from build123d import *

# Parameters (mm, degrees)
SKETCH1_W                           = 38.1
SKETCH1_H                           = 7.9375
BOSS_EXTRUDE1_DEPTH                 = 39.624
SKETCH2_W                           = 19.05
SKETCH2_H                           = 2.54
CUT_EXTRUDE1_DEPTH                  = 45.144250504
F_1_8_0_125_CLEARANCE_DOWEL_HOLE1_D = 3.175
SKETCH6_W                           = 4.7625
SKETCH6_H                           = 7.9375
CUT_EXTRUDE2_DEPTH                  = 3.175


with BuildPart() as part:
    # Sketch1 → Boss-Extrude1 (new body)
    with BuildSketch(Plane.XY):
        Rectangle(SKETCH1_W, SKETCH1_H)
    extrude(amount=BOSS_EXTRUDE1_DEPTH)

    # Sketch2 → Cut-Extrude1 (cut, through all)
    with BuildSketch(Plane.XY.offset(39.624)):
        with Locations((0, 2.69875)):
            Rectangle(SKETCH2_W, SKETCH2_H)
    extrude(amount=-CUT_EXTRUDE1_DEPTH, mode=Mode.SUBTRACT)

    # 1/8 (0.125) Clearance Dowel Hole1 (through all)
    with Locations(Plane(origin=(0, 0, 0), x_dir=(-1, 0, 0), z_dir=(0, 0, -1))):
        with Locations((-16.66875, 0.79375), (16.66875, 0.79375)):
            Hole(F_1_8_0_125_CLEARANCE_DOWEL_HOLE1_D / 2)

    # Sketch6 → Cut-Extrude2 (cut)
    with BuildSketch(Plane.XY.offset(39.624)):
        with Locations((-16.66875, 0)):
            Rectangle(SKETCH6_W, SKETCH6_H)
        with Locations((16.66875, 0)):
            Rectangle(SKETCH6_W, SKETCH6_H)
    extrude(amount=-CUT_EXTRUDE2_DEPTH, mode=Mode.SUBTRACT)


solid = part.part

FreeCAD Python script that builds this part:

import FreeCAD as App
import Part
import Sketcher

V = App.Vector
Q = App.Units.Quantity

doc = App.newDocument("Part")
body = doc.addObject("PartDesign::Body", "Body")

sketch1 = body.newObject("Sketcher::SketchObject", "Sketch")
sketch1.AttachmentSupport = (doc.getObject("XY_Plane"), [""])
sketch1.MapMode = "FlatFace"
sketch1.addGeometry(Part.LineSegment(V(-19, 4, 0), V(-19, -4, 0)), False)
sketch1.addGeometry(Part.LineSegment(V(-19, -4, 0), V(19, -4, 0)), False)
sketch1.addGeometry(Part.LineSegment(V(19, -4, 0), V(19, 4, 0)), False)
sketch1.addGeometry(Part.LineSegment(V(19, 4, 0), V(-19, 4, 0)), False)
sketch1.addConstraint(Sketcher.Constraint("Coincident", 0, 2, 1, 1))
sketch1.addConstraint(Sketcher.Constraint("Coincident", 1, 2, 2, 1))
sketch1.addConstraint(Sketcher.Constraint("Coincident", 2, 2, 3, 1))
sketch1.addConstraint(Sketcher.Constraint("Coincident", 3, 2, 0, 1))
sketch1.addConstraint(Sketcher.Constraint("Vertical", 0))
sketch1.addConstraint(Sketcher.Constraint("Horizontal", 1))
sketch1.addConstraint(Sketcher.Constraint("Vertical", 2))
sketch1.addConstraint(Sketcher.Constraint("Horizontal", 3))
sketch1.addConstraint(Sketcher.Constraint("Symmetric", 0, 2, 2, 2, -1, 1))
sketch1.addConstraint(Sketcher.Constraint("DistanceX", 1, 1, 1, 2, Q("1.5 in")))
sketch1.addConstraint(Sketcher.Constraint("DistanceY", 0, 2, 0, 1, Q("0.3125 in")))
pad1 = body.newObject("PartDesign::Pad", "Pad")
pad1.Profile = sketch1
pad1.Length = Q("1.56 in")

sketch2 = body.newObject("Sketcher::SketchObject", "Sketch001")
sketch2.AttachmentSupport = (doc.getObject("XY_Plane"), [""])
sketch2.MapMode = "FlatFace"
sketch2.AttachmentOffset = App.Placement(V(0, 0, 1.56 * 25.4), App.Rotation())
sketch2.addGeometry(Part.LineSegment(V(-9.5, 4, 0), V(-9.5, 1.4, 0)), False)
sketch2.addGeometry(Part.LineSegment(V(-9.5, 1.4, 0), V(9.5, 1.4, 0)), False)
sketch2.addGeometry(Part.LineSegment(V(9.5, 1.4, 0), V(9.5, 4, 0)), False)
sketch2.addGeometry(Part.LineSegment(V(9.5, 4, 0), V(-9.5, 4, 0)), False)
sketch2.addConstraint(Sketcher.Constraint("Coincident", 0, 2, 1, 1))
sketch2.addConstraint(Sketcher.Constraint("Coincident", 1, 2, 2, 1))
sketch2.addConstraint(Sketcher.Constraint("Coincident", 2, 2, 3, 1))
sketch2.addConstraint(Sketcher.Constraint("Coincident", 3, 2, 0, 1))
sketch2.addConstraint(Sketcher.Constraint("Vertical", 0))
sketch2.addConstraint(Sketcher.Constraint("Horizontal", 1))
sketch2.addConstraint(Sketcher.Constraint("Vertical", 2))
sketch2.addConstraint(Sketcher.Constraint("Horizontal", 3))
sketch2.addConstraint(Sketcher.Constraint("DistanceY", 0, 2, 0, 1, Q("0.1 in")))
sketch2.addConstraint(Sketcher.Constraint("DistanceX", 1, 1, 1, 2, Q("0.75 in")))
sketch2.addConstraint(Sketcher.Constraint("DistanceX", 0, 2, -1, 1, Q("0.375 in")))
sketch2.addConstraint(Sketcher.Constraint("DistanceY", -1, 1, 2, 2, Q("0.15625 in")))
pocket1 = body.newObject("PartDesign::Pocket", "Pocket")
pocket1.Profile = sketch2
pocket1.Type = "ThroughAll"

sketch3 = body.newObject("Sketcher::SketchObject", "Sketch002")
sketch3.AttachmentSupport = (doc.getObject("XY_Plane"), [""])
sketch3.MapMode = "FlatFace"
sketch3.addGeometry(Part.Circle(V(16.7, 0.8, 0), V(0, 0, 1), 1.6), False)
sketch3.addGeometry(Part.Circle(V(-16.7, 0.8, 0), V(0, 0, 1), 1.6), False)
sketch3.addConstraint(Sketcher.Constraint("Equal", 0, 1))
sketch3.addConstraint(Sketcher.Constraint("Symmetric", 0, 3, 1, 3, -2))
sketch3.addConstraint(Sketcher.Constraint("Diameter", 0, Q("0.125 in")))
sketch3.addConstraint(Sketcher.Constraint("DistanceX", -1, 1, 0, 3, Q("0.65625 in")))
sketch3.addConstraint(Sketcher.Constraint("DistanceY", -1, 1, 0, 3, Q("0.03125 in")))
doc.recompute()
hole = body.newObject("PartDesign::Hole", "Hole")
hole.Profile = sketch3
hole.ThreadType = "None"
hole.Diameter = Q("0.125 in")
hole.DepthType = "ThroughAll"
hole.Reversed = True

sketch4 = body.newObject("Sketcher::SketchObject", "Sketch003")
sketch4.AttachmentSupport = (doc.getObject("XY_Plane"), [""])
sketch4.MapMode = "FlatFace"
sketch4.AttachmentOffset = App.Placement(V(0, 0, 1.56 * 25.4), App.Rotation())
sketch4.addGeometry(Part.LineSegment(V(-19.1, 4, 0), V(-19.1, -4, 0)), False)
sketch4.addGeometry(Part.LineSegment(V(-19.1, -4, 0), V(-14.3, -4, 0)), False)
sketch4.addGeometry(Part.LineSegment(V(-14.3, -4, 0), V(-14.3, 4, 0)), False)
sketch4.addGeometry(Part.LineSegment(V(-14.3, 4, 0), V(-19.1, 4, 0)), False)
sketch4.addGeometry(Part.LineSegment(V(14.3, 4, 0), V(14.3, -4, 0)), False)
sketch4.addGeometry(Part.LineSegment(V(14.3, -4, 0), V(19.1, -4, 0)), False)
sketch4.addGeometry(Part.LineSegment(V(19.1, -4, 0), V(19.1, 4, 0)), False)
sketch4.addGeometry(Part.LineSegment(V(19.1, 4, 0), V(14.3, 4, 0)), False)
sketch4.addConstraint(Sketcher.Constraint("Coincident", 0, 2, 1, 1))
sketch4.addConstraint(Sketcher.Constraint("Coincident", 1, 2, 2, 1))
sketch4.addConstraint(Sketcher.Constraint("Coincident", 2, 2, 3, 1))
sketch4.addConstraint(Sketcher.Constraint("Coincident", 3, 2, 0, 1))
sketch4.addConstraint(Sketcher.Constraint("Coincident", 4, 2, 5, 1))
sketch4.addConstraint(Sketcher.Constraint("Coincident", 5, 2, 6, 1))
sketch4.addConstraint(Sketcher.Constraint("Coincident", 6, 2, 7, 1))
sketch4.addConstraint(Sketcher.Constraint("Coincident", 7, 2, 4, 1))
sketch4.addConstraint(Sketcher.Constraint("Vertical", 0))
sketch4.addConstraint(Sketcher.Constraint("Horizontal", 1))
sketch4.addConstraint(Sketcher.Constraint("Vertical", 2))
sketch4.addConstraint(Sketcher.Constraint("Horizontal", 3))
sketch4.addConstraint(Sketcher.Constraint("Vertical", 4))
sketch4.addConstraint(Sketcher.Constraint("Horizontal", 5))
sketch4.addConstraint(Sketcher.Constraint("Vertical", 6))
sketch4.addConstraint(Sketcher.Constraint("Horizontal", 7))
sketch4.addConstraint(Sketcher.Constraint("Symmetric", 2, 2, 4, 2, -1, 1))
sketch4.addConstraint(Sketcher.Constraint("Symmetric", 0, 2, 6, 2, -1, 1))
sketch4.addConstraint(Sketcher.Constraint("Horizontal", 1, 2, 4, 2))
sketch4.addConstraint(Sketcher.Constraint("DistanceX", 0, 2, 5, 2, Q("1.5 in")))
sketch4.addConstraint(Sketcher.Constraint("DistanceX", 1, 1, 1, 2, Q("0.1875 in")))
sketch4.addConstraint(Sketcher.Constraint("DistanceY", 0, 2, 0, 1, Q("0.3125 in")))
pocket2 = body.newObject("PartDesign::Pocket", "Pocket001")
pocket2.Profile = sketch4
pocket2.Length = Q("0.125 in")

doc.recompute()
